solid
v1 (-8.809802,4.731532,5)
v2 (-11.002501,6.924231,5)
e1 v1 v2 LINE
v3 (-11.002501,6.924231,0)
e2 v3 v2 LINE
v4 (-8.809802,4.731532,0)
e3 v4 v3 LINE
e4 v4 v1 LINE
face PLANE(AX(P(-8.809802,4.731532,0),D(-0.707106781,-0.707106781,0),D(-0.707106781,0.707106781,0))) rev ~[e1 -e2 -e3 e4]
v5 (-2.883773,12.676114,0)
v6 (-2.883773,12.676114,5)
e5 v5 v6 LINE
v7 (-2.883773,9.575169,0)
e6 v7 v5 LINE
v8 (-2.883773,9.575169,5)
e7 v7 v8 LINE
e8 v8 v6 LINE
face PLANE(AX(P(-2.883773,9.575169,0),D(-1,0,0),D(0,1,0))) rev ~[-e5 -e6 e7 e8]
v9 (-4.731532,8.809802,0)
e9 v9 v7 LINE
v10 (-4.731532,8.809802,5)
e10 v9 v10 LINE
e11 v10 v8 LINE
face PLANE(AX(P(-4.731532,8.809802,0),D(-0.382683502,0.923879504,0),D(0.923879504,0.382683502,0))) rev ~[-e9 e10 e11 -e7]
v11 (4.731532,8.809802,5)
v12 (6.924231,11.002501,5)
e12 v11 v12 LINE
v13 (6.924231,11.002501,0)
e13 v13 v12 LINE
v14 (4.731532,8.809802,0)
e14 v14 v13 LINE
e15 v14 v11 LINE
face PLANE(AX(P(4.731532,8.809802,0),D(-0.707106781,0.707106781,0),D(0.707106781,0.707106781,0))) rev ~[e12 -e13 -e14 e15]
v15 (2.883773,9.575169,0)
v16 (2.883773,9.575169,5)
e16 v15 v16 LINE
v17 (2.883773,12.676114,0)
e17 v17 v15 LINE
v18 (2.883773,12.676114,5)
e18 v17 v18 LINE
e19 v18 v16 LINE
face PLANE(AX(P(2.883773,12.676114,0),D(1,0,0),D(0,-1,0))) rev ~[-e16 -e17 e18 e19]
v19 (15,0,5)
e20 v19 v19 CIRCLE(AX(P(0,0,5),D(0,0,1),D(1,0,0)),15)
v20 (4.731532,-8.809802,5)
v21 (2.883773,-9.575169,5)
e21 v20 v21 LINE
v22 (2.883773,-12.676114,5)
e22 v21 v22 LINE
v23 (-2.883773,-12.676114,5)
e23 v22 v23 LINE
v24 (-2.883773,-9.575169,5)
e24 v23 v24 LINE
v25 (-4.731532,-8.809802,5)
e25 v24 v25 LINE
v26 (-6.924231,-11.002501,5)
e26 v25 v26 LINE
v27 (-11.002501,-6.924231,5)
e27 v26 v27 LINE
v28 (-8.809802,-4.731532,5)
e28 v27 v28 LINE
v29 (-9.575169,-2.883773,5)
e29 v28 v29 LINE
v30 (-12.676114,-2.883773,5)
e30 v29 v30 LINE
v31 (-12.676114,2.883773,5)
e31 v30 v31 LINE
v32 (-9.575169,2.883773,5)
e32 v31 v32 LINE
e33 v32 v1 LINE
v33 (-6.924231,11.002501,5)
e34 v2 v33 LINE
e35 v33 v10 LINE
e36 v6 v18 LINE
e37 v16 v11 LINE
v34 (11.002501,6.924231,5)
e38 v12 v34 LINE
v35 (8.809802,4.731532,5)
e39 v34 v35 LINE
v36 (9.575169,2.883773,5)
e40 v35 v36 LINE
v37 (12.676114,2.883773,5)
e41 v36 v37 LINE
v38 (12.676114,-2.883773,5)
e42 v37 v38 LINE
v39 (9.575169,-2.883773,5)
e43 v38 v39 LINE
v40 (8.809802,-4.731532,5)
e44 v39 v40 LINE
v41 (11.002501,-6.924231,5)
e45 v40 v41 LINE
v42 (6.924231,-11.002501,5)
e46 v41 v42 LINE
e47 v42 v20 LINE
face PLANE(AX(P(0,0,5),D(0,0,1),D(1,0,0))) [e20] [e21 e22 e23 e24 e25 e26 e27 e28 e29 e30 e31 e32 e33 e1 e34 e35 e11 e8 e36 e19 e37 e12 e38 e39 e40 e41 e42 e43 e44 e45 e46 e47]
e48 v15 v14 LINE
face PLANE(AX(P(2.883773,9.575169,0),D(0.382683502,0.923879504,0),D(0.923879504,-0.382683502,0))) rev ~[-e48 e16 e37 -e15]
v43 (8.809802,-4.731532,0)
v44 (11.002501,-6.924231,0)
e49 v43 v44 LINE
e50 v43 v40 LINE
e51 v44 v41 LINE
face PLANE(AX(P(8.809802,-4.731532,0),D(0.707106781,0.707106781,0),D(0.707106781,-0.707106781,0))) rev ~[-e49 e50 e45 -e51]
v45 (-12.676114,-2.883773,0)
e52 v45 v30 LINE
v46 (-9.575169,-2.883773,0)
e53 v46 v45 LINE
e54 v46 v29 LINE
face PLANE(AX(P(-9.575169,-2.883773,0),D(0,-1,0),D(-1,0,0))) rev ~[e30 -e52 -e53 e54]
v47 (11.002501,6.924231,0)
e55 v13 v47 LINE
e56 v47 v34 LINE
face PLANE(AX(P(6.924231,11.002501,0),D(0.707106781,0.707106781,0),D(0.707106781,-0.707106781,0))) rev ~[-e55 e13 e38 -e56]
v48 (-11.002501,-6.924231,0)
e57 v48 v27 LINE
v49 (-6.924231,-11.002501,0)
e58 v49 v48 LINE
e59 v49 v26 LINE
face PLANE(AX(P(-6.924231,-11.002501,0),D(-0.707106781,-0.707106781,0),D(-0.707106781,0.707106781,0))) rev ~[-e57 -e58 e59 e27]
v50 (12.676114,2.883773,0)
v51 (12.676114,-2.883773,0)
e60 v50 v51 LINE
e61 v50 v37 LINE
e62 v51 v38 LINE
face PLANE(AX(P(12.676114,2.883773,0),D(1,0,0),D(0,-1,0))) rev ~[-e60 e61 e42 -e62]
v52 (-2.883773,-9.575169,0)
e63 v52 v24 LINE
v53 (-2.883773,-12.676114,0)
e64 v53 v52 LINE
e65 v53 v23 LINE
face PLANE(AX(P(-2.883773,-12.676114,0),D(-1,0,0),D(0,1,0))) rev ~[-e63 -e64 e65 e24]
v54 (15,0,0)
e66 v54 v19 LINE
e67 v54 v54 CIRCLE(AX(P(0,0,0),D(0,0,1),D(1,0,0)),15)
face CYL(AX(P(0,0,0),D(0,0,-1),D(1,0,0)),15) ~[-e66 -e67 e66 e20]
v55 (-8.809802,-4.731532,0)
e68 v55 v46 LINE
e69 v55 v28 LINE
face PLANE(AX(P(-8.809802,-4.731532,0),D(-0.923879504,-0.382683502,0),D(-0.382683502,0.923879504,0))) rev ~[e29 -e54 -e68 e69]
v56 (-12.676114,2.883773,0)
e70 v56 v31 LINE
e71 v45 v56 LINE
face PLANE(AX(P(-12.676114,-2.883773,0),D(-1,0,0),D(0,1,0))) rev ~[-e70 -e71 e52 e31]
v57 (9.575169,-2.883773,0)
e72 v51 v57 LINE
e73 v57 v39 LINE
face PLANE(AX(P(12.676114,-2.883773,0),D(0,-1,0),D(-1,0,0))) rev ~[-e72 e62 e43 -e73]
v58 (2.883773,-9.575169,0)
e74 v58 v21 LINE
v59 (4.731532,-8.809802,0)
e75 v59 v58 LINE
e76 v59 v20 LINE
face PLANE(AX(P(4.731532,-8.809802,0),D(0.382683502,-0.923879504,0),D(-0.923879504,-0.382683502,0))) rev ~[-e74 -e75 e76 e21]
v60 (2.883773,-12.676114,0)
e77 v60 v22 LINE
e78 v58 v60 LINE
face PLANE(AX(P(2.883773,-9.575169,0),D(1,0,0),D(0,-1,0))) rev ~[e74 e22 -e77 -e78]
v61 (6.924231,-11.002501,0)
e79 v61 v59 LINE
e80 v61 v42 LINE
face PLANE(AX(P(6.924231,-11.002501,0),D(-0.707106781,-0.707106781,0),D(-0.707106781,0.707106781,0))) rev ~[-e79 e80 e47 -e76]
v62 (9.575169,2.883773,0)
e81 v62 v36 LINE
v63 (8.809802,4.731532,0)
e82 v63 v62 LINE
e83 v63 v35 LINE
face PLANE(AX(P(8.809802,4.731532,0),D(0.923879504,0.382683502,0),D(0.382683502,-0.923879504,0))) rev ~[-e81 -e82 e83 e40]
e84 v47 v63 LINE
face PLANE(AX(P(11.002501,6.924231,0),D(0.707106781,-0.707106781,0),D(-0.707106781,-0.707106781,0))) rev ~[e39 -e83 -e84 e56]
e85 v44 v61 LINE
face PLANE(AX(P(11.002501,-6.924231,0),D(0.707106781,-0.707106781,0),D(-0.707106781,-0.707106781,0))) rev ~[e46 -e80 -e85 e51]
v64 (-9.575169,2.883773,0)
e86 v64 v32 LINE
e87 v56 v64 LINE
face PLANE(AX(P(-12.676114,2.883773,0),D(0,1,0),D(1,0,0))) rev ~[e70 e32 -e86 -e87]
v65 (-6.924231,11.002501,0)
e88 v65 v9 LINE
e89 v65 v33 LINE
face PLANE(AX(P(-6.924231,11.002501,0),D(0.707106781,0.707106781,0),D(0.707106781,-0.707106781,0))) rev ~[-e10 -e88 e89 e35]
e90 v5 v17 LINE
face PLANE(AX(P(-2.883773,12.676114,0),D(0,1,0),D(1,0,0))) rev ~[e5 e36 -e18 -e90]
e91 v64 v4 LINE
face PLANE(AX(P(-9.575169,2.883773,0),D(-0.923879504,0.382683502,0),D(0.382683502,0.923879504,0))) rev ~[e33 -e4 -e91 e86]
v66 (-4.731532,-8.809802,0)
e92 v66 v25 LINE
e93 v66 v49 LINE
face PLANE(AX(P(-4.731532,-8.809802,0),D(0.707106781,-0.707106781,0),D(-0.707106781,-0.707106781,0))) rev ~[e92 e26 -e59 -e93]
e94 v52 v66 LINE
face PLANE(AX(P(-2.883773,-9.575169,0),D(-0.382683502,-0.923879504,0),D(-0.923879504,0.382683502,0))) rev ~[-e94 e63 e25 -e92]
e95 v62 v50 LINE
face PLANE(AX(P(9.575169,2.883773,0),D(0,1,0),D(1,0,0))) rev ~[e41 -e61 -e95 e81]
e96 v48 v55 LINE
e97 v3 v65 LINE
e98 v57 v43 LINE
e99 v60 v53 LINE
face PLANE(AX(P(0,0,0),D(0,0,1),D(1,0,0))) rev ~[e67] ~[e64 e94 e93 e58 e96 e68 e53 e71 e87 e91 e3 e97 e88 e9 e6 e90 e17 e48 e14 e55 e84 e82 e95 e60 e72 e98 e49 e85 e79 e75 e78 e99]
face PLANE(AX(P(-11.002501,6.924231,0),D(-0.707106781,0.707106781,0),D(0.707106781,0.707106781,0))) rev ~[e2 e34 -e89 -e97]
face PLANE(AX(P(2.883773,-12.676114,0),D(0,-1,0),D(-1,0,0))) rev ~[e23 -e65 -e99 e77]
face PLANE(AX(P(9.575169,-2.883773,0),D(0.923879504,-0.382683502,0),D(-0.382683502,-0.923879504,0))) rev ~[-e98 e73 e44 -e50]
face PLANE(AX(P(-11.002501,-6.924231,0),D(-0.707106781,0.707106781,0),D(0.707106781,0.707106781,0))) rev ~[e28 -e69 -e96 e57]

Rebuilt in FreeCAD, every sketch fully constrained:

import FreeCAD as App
import Part
import Sketcher
Q = App.Units.Quantity

doc = App.newDocument("Part")
body = doc.addObject("PartDesign::Body", "Body")

# Sketch on XY plane
sketch1 = body.newObject("Sketcher::SketchObject", "Sketch")
sketch1.AttachmentSupport = (doc.getObject("XY_Plane"), [""])
sketch1.MapMode = "FlatFace"
sketch1.addGeometry([
    Part.Circle(App.Vector(0, 0, 0), App.Vector(0, 0, 1), 15),  # 0
    Part.LineSegment(App.Vector(-2.9, 12.7, 0), App.Vector(2.9, 12.7, 0)),  # 1
    Part.LineSegment(App.Vector(2.9, 12.7, 0), App.Vector(2.9, 9.6, 0)),  # 2
    Part.LineSegment(App.Vector(2.9, 9.6, 0), App.Vector(4.7, 8.8, 0)),  # 3
    Part.LineSegment(App.Vector(4.7, 8.8, 0), App.Vector(6.9, 11, 0)),  # 4
    Part.LineSegment(App.Vector(6.9, 11, 0), App.Vector(11, 6.9, 0)),  # 5
    Part.LineSegment(App.Vector(11, 6.9, 0), App.Vector(8.8, 4.7, 0)),  # 6
    Part.LineSegment(App.Vector(8.8, 4.7, 0), App.Vector(9.6, 2.9, 0)),  # 7
    Part.LineSegment(App.Vector(9.6, 2.9, 0), App.Vector(12.7, 2.9, 0)),  # 8
    Part.LineSegment(App.Vector(12.7, 2.9, 0), App.Vector(12.7, -2.9, 0)),  # 9
    Part.LineSegment(App.Vector(12.7, -2.9, 0), App.Vector(9.6, -2.9, 0)),  # 10
    Part.LineSegment(App.Vector(9.6, -2.9, 0), App.Vector(8.8, -4.7, 0)),  # 11
    Part.LineSegment(App.Vector(8.8, -4.7, 0), App.Vector(11, -6.9, 0)),  # 12
    Part.LineSegment(App.Vector(11, -6.9, 0), App.Vector(6.9, -11, 0)),  # 13
    Part.LineSegment(App.Vector(6.9, -11, 0), App.Vector(4.7, -8.8, 0)),  # 14
    Part.LineSegment(App.Vector(4.7, -8.8, 0), App.Vector(2.9, -9.6, 0)),  # 15
    Part.LineSegment(App.Vector(2.9, -9.6, 0), App.Vector(2.9, -12.7, 0)),  # 16
    Part.LineSegment(App.Vector(2.9, -12.7, 0), App.Vector(-2.9, -12.7, 0)),  # 17
    Part.LineSegment(App.Vector(-2.9, -12.7, 0), App.Vector(-2.9, -9.6, 0)),  # 18
    Part.LineSegment(App.Vector(-2.9, -9.6, 0), App.Vector(-4.7, -8.8, 0)),  # 19
    Part.LineSegment(App.Vector(-4.7, -8.8, 0), App.Vector(-6.9, -11, 0)),  # 20
    Part.LineSegment(App.Vector(-6.9, -11, 0), App.Vector(-11, -6.9, 0)),  # 21
    Part.LineSegment(App.Vector(-11, -6.9, 0), App.Vector(-8.8, -4.7, 0)),  # 22
    Part.LineSegment(App.Vector(-8.8, -4.7, 0), App.Vector(-9.6, -2.9, 0)),  # 23
    Part.LineSegment(App.Vector(-9.6, -2.9, 0), App.Vector(-12.7, -2.9, 0)),  # 24
    Part.LineSegment(App.Vector(-12.7, -2.9, 0), App.Vector(-12.7, 2.9, 0)),  # 25
    Part.LineSegment(App.Vector(-12.7, 2.9, 0), App.Vector(-9.6, 2.9, 0)),  # 26
    Part.LineSegment(App.Vector(-9.6, 2.9, 0), App.Vector(-8.8, 4.7, 0)),  # 27
    Part.LineSegment(App.Vector(-8.8, 4.7, 0), App.Vector(-11, 6.9, 0)),  # 28
    Part.LineSegment(App.Vector(-11, 6.9, 0), App.Vector(-6.9, 11, 0)),  # 29
    Part.LineSegment(App.Vector(-6.9, 11, 0), App.Vector(-4.7, 8.8, 0)),  # 30
    Part.LineSegment(App.Vector(-4.7, 8.8, 0), App.Vector(-2.9, 9.6, 0)),  # 31
    Part.LineSegment(App.Vector(-2.9, 9.6, 0), App.Vector(-2.9, 12.7, 0)),  # 32
], False)
sketch1.addConstraint([
    Sketcher.Constraint("Coincident", 1, 2, 2, 1),
    Sketcher.Constraint("Coincident", 2, 2, 3, 1),
    Sketcher.Constraint("Coincident", 3, 2, 4, 1),
    Sketcher.Constraint("Coincident", 4, 2, 5, 1),
    Sketcher.Constraint("Coincident", 5, 2, 6, 1),
    Sketcher.Constraint("Coincident", 6, 2, 7, 1),
    Sketcher.Constraint("Coincident", 7, 2, 8, 1),
    Sketcher.Constraint("Coincident", 8, 2, 9, 1),
    Sketcher.Constraint("Coincident", 9, 2, 10, 1),
    Sketcher.Constraint("Coincident", 10, 2, 11, 1),
    Sketcher.Constraint("Coincident", 11, 2, 12, 1),
    Sketcher.Constraint("Coincident", 12, 2, 13, 1),
    Sketcher.Constraint("Coincident", 13, 2, 14, 1),
    Sketcher.Constraint("Coincident", 14, 2, 15, 1),
    Sketcher.Constraint("Coincident", 15, 2, 16, 1),
    Sketcher.Constraint("Coincident", 16, 2, 17, 1),
    Sketcher.Constraint("Coincident", 17, 2, 18, 1),
    Sketcher.Constraint("Coincident", 18, 2, 19, 1),
    Sketcher.Constraint("Coincident", 19, 2, 20, 1),
    Sketcher.Constraint("Coincident", 20, 2, 21, 1),
    Sketcher.Constraint("Coincident", 21, 2, 22, 1),
    Sketcher.Constraint("Coincident", 22, 2, 23, 1),
    Sketcher.Constraint("Coincident", 23, 2, 24, 1),
    Sketcher.Constraint("Coincident", 24, 2, 25, 1),
    Sketcher.Constraint("Coincident", 25, 2, 26, 1),
    Sketcher.Constraint("Coincident", 26, 2, 27, 1),
    Sketcher.Constraint("Coincident", 27, 2, 28, 1),
    Sketcher.Constraint("Coincident", 28, 2, 29, 1),
    Sketcher.Constraint("Coincident", 29, 2, 30, 1),
    Sketcher.Constraint("Coincident", 30, 2, 31, 1),
    Sketcher.Constraint("Coincident", 31, 2, 32, 1),
    Sketcher.Constraint("Coincident", 32, 2, 1, 1),
    Sketcher.Constraint("Horizontal", 1),
    Sketcher.Constraint("Vertical", 2),
    Sketcher.Constraint("Horizontal", 8),
    Sketcher.Constraint("Vertical", 9),
    Sketcher.Constraint("Horizontal", 10),
    Sketcher.Constraint("Vertical", 16),
    Sketcher.Constraint("Horizontal", 17),
    Sketcher.Constraint("Vertical", 18),
    Sketcher.Constraint("Horizontal", 24),
    Sketcher.Constraint("Vertical", 25),
    Sketcher.Constraint("Horizontal", 26),
    Sketcher.Constraint("Vertical", 32),
    Sketcher.Constraint("Coincident", 0, 3, -1, 1),
    Sketcher.Constraint("Symmetric", 1, 2, 17, 2, -1, 1),
    Sketcher.Constraint("Symmetric", 3, 2, 19, 2, -1, 1),
    Sketcher.Constraint("Symmetric", 4, 2, 20, 2, -1, 1),
    Sketcher.Constraint("Symmetric", 5, 2, 21, 2, -1, 1),
    Sketcher.Constraint("Symmetric", 6, 2, 22, 2, -1, 1),
    Sketcher.Constraint("Symmetric", 7, 2, 23, 2, -1, 1),
    Sketcher.Constraint("Symmetric", 9, 2, 25, 2, -1, 1),
    Sketcher.Constraint("Symmetric", 11, 2, 27, 2, -1, 1),
    Sketcher.Constraint("Symmetric", 12, 2, 28, 2, -1, 1),
    Sketcher.Constraint("Symmetric", 13, 2, 29, 2, -1, 1),
    Sketcher.Constraint("Symmetric", 14, 2, 30, 2, -1, 1),
    Sketcher.Constraint("Symmetric", 15, 2, 31, 2, -1, 1),
    Sketcher.Constraint("Symmetric", 15, 2, 18, 2, -2),
    Sketcher.Constraint("Symmetric", 14, 2, 19, 2, -2),
    Sketcher.Constraint("Symmetric", 13, 2, 20, 2, -2),
    Sketcher.Constraint("Symmetric", 12, 2, 21, 2, -2),
    Sketcher.Constraint("Symmetric", 11, 2, 22, 2, -2),
    Sketcher.Constraint("Symmetric", 10, 2, 23, 2, -2),
    Sketcher.Constraint("Perpendicular", 4, 5),
    Sketcher.Constraint("Perpendicular", 5, 6),
    Sketcher.Constraint("Perpendicular", 3, 11),
    Sketcher.Constraint("Perpendicular", 6, 12),
    Sketcher.Constraint("Perpendicular", 7, 15),
    Sketcher.Constraint("Perpendicular", 19, 27),
    Sketcher.Constraint("Equal", 26, 2),
    Sketcher.Constraint("Equal", 17, 9),
    Sketcher.Constraint("Equal", 4, 6),
    Sketcher.Constraint("Equal", 3, 7),
    Sketcher.Constraint("Diameter", 0, Q("30 mm")),
    Sketcher.Constraint("Distance", 3, Q("2 mm")),
    Sketcher.Constraint("Angle", 3, Q("-22.500004 deg")),
    Sketcher.Constraint("DistanceY", -1, 1, 4, 2, Q("11.002501 mm")),
    Sketcher.Constraint("DistanceX", 3, 2, 4, 2, Q("2.192699 mm")),
    Sketcher.Constraint("DistanceX", 1, 1, 1, 2, Q("5.767546 mm")),
    Sketcher.Constraint("DistanceX", 8, 1, 8, 2, Q("3.100945 mm")),
])
pad1 = body.newObject("PartDesign::Pad", "Pad")
pad1.Profile = sketch1
pad1.Length = 5

doc.recompute()
